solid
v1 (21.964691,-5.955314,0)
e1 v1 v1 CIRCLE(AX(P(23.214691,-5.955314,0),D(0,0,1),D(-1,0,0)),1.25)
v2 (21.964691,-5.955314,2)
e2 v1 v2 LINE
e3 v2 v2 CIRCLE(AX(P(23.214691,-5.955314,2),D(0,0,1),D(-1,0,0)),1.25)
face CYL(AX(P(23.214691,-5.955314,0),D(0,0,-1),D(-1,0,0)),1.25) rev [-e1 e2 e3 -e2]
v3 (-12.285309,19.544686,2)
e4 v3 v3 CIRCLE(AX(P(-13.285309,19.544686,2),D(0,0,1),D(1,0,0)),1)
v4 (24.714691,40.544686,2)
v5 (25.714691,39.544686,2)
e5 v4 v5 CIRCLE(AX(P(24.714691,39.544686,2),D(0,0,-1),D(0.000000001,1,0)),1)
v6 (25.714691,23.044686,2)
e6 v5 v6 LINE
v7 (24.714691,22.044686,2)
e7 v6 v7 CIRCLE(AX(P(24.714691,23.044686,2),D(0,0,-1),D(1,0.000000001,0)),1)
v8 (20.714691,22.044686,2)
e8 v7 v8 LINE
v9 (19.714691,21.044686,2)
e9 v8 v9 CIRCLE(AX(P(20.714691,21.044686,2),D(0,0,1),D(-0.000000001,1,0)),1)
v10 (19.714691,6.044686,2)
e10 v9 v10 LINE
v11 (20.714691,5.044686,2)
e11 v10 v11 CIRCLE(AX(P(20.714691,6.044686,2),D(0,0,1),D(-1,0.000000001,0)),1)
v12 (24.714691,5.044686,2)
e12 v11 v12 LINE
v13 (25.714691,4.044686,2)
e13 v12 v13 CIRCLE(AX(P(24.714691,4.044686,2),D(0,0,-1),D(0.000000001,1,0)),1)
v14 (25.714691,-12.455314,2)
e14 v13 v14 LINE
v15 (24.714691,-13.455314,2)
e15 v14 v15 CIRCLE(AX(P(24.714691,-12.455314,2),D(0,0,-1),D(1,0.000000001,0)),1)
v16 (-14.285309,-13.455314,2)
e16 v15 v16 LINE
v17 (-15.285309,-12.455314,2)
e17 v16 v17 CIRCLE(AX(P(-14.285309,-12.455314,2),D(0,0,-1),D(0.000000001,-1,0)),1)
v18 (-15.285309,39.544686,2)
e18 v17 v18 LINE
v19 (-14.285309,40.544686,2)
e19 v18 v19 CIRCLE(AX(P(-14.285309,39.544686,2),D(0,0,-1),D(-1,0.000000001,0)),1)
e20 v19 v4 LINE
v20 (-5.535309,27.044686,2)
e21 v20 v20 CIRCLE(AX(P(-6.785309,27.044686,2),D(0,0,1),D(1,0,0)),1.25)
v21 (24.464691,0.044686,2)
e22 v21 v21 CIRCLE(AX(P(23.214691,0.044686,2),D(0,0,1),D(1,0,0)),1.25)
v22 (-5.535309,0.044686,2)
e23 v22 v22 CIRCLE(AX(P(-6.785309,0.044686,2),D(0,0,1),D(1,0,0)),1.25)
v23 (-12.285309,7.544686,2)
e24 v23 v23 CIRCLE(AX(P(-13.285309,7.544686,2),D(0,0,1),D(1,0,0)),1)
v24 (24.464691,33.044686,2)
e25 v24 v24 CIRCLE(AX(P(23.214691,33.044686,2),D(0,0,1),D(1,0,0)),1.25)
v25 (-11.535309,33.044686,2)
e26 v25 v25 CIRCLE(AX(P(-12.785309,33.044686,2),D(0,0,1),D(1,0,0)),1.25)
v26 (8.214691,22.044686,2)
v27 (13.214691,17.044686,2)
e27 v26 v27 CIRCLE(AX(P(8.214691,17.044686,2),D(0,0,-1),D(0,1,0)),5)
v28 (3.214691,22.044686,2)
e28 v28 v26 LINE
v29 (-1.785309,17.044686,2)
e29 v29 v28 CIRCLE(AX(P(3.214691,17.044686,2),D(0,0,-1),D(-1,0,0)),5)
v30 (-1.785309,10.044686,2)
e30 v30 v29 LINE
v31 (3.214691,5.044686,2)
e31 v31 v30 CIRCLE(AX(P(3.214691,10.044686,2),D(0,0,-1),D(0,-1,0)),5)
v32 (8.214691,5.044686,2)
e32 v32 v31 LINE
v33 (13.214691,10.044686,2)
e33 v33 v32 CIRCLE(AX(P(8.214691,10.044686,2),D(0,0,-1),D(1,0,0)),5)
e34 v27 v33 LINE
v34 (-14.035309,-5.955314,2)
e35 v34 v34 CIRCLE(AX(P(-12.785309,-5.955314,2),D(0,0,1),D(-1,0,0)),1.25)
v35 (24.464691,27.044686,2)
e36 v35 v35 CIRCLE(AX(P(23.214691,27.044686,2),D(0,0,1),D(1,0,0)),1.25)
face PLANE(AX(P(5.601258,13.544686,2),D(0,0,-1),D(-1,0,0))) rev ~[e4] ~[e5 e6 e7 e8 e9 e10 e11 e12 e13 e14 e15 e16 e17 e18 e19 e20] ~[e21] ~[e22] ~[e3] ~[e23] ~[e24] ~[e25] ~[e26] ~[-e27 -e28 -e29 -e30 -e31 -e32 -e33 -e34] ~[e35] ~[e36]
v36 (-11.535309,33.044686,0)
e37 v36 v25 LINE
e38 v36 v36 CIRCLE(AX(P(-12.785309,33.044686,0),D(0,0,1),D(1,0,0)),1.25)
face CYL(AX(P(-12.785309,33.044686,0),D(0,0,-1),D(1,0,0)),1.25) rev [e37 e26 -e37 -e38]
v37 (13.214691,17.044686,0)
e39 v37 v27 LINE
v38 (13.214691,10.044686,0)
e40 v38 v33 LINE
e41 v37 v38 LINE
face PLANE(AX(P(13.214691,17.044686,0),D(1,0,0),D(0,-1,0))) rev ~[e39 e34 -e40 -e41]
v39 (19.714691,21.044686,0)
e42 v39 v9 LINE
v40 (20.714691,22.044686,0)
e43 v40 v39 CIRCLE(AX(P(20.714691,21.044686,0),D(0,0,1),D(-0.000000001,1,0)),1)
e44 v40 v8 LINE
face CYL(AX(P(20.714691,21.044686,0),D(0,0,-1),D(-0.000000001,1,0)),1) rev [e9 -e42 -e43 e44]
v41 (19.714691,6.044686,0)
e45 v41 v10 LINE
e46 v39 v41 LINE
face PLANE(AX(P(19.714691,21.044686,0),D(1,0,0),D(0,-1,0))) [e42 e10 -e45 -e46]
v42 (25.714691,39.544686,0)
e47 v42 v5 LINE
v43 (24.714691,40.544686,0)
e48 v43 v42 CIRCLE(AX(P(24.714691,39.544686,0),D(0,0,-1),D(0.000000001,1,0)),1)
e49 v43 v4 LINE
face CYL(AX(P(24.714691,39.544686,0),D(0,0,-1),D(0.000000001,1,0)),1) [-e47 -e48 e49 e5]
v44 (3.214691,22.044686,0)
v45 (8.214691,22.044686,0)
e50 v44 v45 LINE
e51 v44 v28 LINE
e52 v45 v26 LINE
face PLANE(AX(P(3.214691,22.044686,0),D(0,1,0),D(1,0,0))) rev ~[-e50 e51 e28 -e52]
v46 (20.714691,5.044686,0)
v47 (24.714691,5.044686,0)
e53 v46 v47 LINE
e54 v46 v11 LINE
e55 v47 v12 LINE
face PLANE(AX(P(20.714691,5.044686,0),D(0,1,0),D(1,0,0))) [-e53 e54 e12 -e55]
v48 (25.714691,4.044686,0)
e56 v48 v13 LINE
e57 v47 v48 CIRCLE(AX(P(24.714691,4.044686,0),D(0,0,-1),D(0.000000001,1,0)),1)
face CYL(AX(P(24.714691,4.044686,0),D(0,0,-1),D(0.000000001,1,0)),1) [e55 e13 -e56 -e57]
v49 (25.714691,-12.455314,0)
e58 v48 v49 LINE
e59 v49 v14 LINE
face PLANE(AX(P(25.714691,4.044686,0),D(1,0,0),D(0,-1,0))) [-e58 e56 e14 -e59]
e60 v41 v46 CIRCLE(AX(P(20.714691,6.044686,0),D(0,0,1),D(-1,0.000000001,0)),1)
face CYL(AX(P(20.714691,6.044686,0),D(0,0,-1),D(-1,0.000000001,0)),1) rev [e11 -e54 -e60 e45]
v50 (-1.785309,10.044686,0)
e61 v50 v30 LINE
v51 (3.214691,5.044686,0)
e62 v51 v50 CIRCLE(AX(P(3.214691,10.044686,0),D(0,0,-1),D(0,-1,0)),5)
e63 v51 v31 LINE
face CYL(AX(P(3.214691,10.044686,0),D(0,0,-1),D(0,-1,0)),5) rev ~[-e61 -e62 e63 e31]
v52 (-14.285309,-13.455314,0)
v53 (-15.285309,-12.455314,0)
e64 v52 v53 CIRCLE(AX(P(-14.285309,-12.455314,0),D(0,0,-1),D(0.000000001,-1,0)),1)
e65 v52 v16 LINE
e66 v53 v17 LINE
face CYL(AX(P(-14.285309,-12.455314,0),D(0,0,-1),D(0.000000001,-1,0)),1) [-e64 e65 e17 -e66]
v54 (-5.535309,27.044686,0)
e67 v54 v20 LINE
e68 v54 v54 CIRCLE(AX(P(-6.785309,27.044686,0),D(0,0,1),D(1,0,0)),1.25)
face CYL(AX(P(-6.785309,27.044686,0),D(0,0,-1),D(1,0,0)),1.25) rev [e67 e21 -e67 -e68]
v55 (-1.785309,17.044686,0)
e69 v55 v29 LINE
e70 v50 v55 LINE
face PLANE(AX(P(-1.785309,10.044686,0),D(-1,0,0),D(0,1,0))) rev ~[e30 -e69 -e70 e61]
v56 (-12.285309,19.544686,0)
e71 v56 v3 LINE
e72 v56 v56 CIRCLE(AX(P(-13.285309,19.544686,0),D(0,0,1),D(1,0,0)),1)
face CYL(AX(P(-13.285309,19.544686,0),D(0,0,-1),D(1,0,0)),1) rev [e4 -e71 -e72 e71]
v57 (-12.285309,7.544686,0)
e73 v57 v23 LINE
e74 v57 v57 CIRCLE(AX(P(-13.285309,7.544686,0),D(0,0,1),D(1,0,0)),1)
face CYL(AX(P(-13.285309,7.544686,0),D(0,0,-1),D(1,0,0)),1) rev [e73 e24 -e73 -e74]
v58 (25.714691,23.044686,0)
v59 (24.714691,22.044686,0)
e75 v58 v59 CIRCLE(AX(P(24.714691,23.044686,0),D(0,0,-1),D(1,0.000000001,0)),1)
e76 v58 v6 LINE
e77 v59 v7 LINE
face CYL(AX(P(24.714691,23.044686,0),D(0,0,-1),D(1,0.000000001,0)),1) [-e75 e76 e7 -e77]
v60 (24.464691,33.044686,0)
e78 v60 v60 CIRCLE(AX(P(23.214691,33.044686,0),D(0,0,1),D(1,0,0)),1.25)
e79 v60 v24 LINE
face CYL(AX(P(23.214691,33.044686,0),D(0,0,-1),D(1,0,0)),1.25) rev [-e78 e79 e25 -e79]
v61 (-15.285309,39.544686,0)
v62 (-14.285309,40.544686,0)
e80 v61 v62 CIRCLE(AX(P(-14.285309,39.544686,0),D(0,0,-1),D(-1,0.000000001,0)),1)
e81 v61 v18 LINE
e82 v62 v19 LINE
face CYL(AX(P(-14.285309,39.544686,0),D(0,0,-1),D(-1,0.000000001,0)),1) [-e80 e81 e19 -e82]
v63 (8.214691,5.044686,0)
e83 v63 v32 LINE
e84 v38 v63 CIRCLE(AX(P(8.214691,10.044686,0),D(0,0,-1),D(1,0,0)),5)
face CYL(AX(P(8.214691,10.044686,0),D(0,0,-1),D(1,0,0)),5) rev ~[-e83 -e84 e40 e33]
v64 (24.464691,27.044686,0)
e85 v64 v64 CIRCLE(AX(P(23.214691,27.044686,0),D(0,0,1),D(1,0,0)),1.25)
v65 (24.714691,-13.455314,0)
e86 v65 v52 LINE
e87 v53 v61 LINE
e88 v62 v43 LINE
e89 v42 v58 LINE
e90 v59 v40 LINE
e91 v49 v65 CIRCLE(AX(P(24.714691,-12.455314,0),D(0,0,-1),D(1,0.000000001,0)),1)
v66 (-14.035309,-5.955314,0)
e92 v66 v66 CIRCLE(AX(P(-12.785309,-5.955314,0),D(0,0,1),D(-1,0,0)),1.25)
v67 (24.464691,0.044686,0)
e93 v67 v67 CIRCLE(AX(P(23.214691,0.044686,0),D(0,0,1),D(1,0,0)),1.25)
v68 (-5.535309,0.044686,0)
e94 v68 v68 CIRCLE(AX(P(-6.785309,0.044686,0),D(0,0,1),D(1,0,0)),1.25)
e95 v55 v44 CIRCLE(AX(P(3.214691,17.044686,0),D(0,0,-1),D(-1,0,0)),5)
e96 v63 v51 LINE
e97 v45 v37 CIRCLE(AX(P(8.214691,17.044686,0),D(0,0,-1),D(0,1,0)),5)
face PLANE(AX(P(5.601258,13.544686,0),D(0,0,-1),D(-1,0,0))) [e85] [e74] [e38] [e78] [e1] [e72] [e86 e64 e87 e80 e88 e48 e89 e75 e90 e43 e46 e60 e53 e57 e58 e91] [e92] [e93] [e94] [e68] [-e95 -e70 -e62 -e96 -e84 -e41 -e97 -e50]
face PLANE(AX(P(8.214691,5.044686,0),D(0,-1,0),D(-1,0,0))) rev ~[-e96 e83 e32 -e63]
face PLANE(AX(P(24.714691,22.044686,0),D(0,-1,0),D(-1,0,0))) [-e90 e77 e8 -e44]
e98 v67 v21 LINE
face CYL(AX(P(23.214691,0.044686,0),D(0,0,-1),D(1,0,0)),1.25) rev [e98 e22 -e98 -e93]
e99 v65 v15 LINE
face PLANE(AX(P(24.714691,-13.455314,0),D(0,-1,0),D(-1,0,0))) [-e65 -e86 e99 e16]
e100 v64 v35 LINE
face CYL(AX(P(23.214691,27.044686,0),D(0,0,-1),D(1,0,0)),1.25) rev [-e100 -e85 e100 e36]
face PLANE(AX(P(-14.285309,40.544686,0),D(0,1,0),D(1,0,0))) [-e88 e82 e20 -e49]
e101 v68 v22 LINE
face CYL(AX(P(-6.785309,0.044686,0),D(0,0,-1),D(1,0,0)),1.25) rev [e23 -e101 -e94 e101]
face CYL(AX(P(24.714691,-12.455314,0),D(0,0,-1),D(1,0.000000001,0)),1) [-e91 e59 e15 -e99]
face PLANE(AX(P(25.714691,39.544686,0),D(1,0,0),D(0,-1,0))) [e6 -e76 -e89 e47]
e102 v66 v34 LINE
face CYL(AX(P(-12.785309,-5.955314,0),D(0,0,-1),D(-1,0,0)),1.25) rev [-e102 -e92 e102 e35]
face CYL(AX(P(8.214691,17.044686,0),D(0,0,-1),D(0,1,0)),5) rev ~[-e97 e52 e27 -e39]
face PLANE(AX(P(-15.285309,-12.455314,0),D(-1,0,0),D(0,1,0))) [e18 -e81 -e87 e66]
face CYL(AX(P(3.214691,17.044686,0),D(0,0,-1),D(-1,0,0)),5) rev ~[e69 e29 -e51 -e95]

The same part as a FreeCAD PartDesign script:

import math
import FreeCAD as App
import Part
import Sketcher
Q = App.Units.Quantity

doc = App.newDocument("Part")
body = doc.addObject("PartDesign::Body", "Body")

# Sketch on XY plane
sketch1 = body.newObject("Sketcher::SketchObject", "Sketch")
sketch1.AttachmentSupport = (doc.getObject("XY_Plane"), [""])
sketch1.MapMode = "FlatFace"
sketch1.addGeometry([
    Part.LineSegment(App.Vector(25.7, -12.5, 0), App.Vector(25.7, 4, 0)),  # 0
    Part.ArcOfCircle(Part.Circle(App.Vector(24.7, 4, 0), App.Vector(0, 0, 1), 1), math.radians(0), math.radians(90)),  # 1
    Part.LineSegment(App.Vector(24.7, 5, 0), App.Vector(20.7, 5, 0)),  # 2
    Part.ArcOfCircle(Part.Circle(App.Vector(20.7, 6, 0), App.Vector(0, 0, 1), 1), math.radians(180), math.radians(270)),  # 3
    Part.LineSegment(App.Vector(19.7, 6, 0), App.Vector(19.7, 21, 0)),  # 4
    Part.ArcOfCircle(Part.Circle(App.Vector(20.7, 21, 0), App.Vector(0, 0, 1), 1), math.radians(90), math.radians(180)),  # 5
    Part.LineSegment(App.Vector(20.7, 22, 0), App.Vector(24.7, 22, 0)),  # 6
    Part.ArcOfCircle(Part.Circle(App.Vector(24.7, 23, 0), App.Vector(0, 0, 1), 1), math.radians(-90), math.radians(0)),  # 7
    Part.LineSegment(App.Vector(25.7, 23, 0), App.Vector(25.7, 39.5, 0)),  # 8
    Part.ArcOfCircle(Part.Circle(App.Vector(24.7, 39.5, 0), App.Vector(0, 0, 1), 1), math.radians(0), math.radians(90)),  # 9
    Part.LineSegment(App.Vector(24.7, 40.5, 0), App.Vector(-14.3, 40.5, 0)),  # 10
    Part.ArcOfCircle(Part.Circle(App.Vector(-14.3, 39.5, 0), App.Vector(0, 0, 1), 1), math.radians(90), math.radians(180)),  # 11
    Part.LineSegment(App.Vector(-15.3, 39.5, 0), App.Vector(-15.3, -12.5, 0)),  # 12
    Part.ArcOfCircle(Part.Circle(App.Vector(-14.3, -12.5, 0), App.Vector(0, 0, 1), 1), math.radians(180), math.radians(270)),  # 13
    Part.LineSegment(App.Vector(-14.3, -13.5, 0), App.Vector(24.7, -13.5, 0)),  # 14
    Part.ArcOfCircle(Part.Circle(App.Vector(24.7, -12.5, 0), App.Vector(0, 0, 1), 1), math.radians(-90), math.radians(0)),  # 15
    Part.Circle(App.Vector(23.2, -6, 0), App.Vector(0, 0, 1), 1.2),  # 16
    Part.Circle(App.Vector(23.2, 0, 0), App.Vector(0, 0, 1), 1.2),  # 17
    Part.Circle(App.Vector(-12.8, -6, 0), App.Vector(0, 0, 1), 1.2),  # 18
    Part.Circle(App.Vector(-6.8, 0, 0), App.Vector(0, 0, 1), 1.2),  # 19
    Part.Circle(App.Vector(-13.3, 7.5, 0), App.Vector(0, 0, 1), 1),  # 20
    Part.LineSegment(App.Vector(3.2, 22, 0), App.Vector(8.2, 22, 0)),  # 21
    Part.ArcOfCircle(Part.Circle(App.Vector(8.2, 17, 0), App.Vector(0, 0, 1), 5), math.radians(0), math.radians(90)),  # 22
    Part.LineSegment(App.Vector(13.2, 17, 0), App.Vector(13.2, 10, 0)),  # 23
    Part.ArcOfCircle(Part.Circle(App.Vector(8.2, 10, 0), App.Vector(0, 0, 1), 5), math.radians(-90), math.radians(0)),  # 24
    Part.LineSegment(App.Vector(8.2, 5, 0), App.Vector(3.2, 5, 0)),  # 25
    Part.ArcOfCircle(Part.Circle(App.Vector(3.2, 10, 0), App.Vector(0, 0, 1), 5), math.radians(180), math.radians(270)),  # 26
    Part.LineSegment(App.Vector(-1.8, 10, 0), App.Vector(-1.8, 17, 0)),  # 27
    Part.ArcOfCircle(Part.Circle(App.Vector(3.2, 17, 0), App.Vector(0, 0, 1), 5), math.radians(90), math.radians(180)),  # 28
    Part.Circle(App.Vector(23.2, 27, 0), App.Vector(0, 0, 1), 1.2),  # 29
    Part.Circle(App.Vector(23.2, 33, 0), App.Vector(0, 0, 1), 1.2),  # 30
    Part.Circle(App.Vector(-13.3, 19.5, 0), App.Vector(0, 0, 1), 1),  # 31
    Part.Circle(App.Vector(-6.8, 27, 0), App.Vector(0, 0, 1), 1.2),  # 32
    Part.Circle(App.Vector(-12.8, 33, 0), App.Vector(0, 0, 1), 1.2),  # 33
], False)
sketch1.addConstraint([
    Sketcher.Constraint("Tangent", 0, 2, 1, 1),
    Sketcher.Constraint("Tangent", 1, 2, 2, 1),
    Sketcher.Constraint("Tangent", 2, 2, 3, 2),
    Sketcher.Constraint("Tangent", 3, 1, 4, 1),
    Sketcher.Constraint("Tangent", 4, 2, 5, 2),
    Sketcher.Constraint("Tangent", 5, 1, 6, 1),
    Sketcher.Constraint("Tangent", 6, 2, 7, 1),
    Sketcher.Constraint("Tangent", 7, 2, 8, 1),
    Sketcher.Constraint("Tangent", 8, 2, 9, 1),
    Sketcher.Constraint("Tangent", 9, 2, 10, 1),
    Sketcher.Constraint("Tangent", 10, 2, 11, 1),
    Sketcher.Constraint("Tangent", 11, 2, 12, 1),
    Sketcher.Constraint("Tangent", 12, 2, 13, 1),
    Sketcher.Constraint("Tangent", 13, 2, 14, 1),
    Sketcher.Constraint("Tangent", 14, 2, 15, 1),
    Sketcher.Constraint("Tangent", 15, 2, 0, 1),
    Sketcher.Constraint("Tangent", 21, 2, 22, 2),
    Sketcher.Constraint("Tangent", 22, 1, 23, 1),
    Sketcher.Constraint("Tangent", 23, 2, 24, 2),
    Sketcher.Constraint("Tangent", 24, 1, 25, 1),
    Sketcher.Constraint("Tangent", 25, 2, 26, 2),
    Sketcher.Constraint("Tangent", 26, 1, 27, 1),
    Sketcher.Constraint("Tangent", 27, 2, 28, 2),
    Sketcher.Constraint("Tangent", 28, 1, 21, 1),
    Sketcher.Constraint("Vertical", 0),
    Sketcher.Constraint("Horizontal", 2),
    Sketcher.Constraint("Vertical", 4),
    Sketcher.Constraint("Horizontal", 6),
    Sketcher.Constraint("Vertical", 8),
    Sketcher.Constraint("Horizontal", 10),
    Sketcher.Constraint("Vertical", 12),
    Sketcher.Constraint("Horizontal", 14),
    Sketcher.Constraint("Horizontal", 21),
    Sketcher.Constraint("Vertical", 23),
    Sketcher.Constraint("Horizontal", 25),
    Sketcher.Constraint("Vertical", 27),
    Sketcher.Constraint("Equal", 1, 3),
    Sketcher.Constraint("Equal", 3, 5),
    Sketcher.Constraint("Equal", 5, 7),
    Sketcher.Constraint("Equal", 7, 9),
    Sketcher.Constraint("Equal", 9, 11),
    Sketcher.Constraint("Equal", 11, 13),
    Sketcher.Constraint("Equal", 13, 15),
    Sketcher.Constraint("Equal", 16, 17),
    Sketcher.Constraint("Equal", 17, 18),
    Sketcher.Constraint("Equal", 18, 19),
    Sketcher.Constraint("Equal", 15, 20),
    Sketcher.Constraint("Equal", 22, 24),
    Sketcher.Constraint("Equal", 24, 26),
    Sketcher.Constraint("Equal", 26, 28),
    Sketcher.Constraint("Equal", 19, 29),
    Sketcher.Constraint("Equal", 29, 30),
    Sketcher.Constraint("Equal", 20, 31),
    Sketcher.Constraint("Equal", 30, 32),
    Sketcher.Constraint("Equal", 32, 33),
    Sketcher.Constraint("Horizontal", 16, 3, 18, 3),
    Sketcher.Constraint("Horizontal", 17, 3, 19, 3),
    Sketcher.Constraint("Horizontal", 29, 3, 32, 3),
    Sketcher.Constraint("Horizontal", 30, 3, 33, 3),
    Sketcher.Constraint("Horizontal", 6, 2, 21, 2),
    Sketcher.Constraint("Horizontal", 2, 2, 24, 1),
    Sketcher.Constraint("Vertical", 1, 3, 7, 3),
    Sketcher.Constraint("Vertical", 16, 3, 17, 3),
    Sketcher.Constraint("Vertical", 17, 3, 29, 3),
    Sketcher.Constraint("Vertical", 29, 3, 30, 3),
    Sketcher.Constraint("Vertical", 20, 3, 31, 3),
    Sketcher.Constraint("Vertical", 19, 3, 32, 3),
    Sketcher.Constraint("Vertical", 18, 3, 33, 3),
    Sketcher.Constraint("Equal", 0, 8),
    Sketcher.Constraint("Diameter", 20, Q("2 mm")),
    Sketcher.Constraint("Radius", 22, Q("5 mm")),
    Sketcher.Constraint("Diameter", 16, Q("2.5 mm")),
    Sketcher.Constraint("DistanceX", 2, 2, 2, 1, Q("4 mm")),
    Sketcher.Constraint("DistanceX", 10, 2, 10, 1, Q("39 mm")),
    Sketcher.Constraint("DistanceX", 21, 1, 21, 2, Q("5 mm")),
    Sketcher.Constraint("DistanceY", 4, 1, 4, 2, Q("15 mm")),
    Sketcher.Constraint("DistanceY", 12, 2, 12, 1, Q("52 mm")),
    Sketcher.Constraint("DistanceY", 16, 3, 1, 3, Q("10 mm")),
    Sketcher.Constraint("DistanceY", 17, 3, 1, 3, Q("4 mm")),
    Sketcher.Constraint("DistanceX", 18, 3, 16, 3, Q("36 mm")),
    Sketcher.Constraint("DistanceX", 18, 3, 19, 3, Q("6 mm")),
    Sketcher.Constraint("DistanceX", 13, 3, 20, 3, Q("1 mm")),
    Sketcher.Constraint("DistanceY", 13, 3, 20, 3, Q("20 mm")),
    Sketcher.Constraint("DistanceX", 22, 3, 17, 3, Q("15 mm")),
    Sketcher.Constraint("DistanceY", 7, 3, 29, 3, Q("4 mm")),
    Sketcher.Constraint("DistanceY", 29, 3, 30, 3, Q("6 mm")),
    Sketcher.Constraint("DistanceY", 20, 3, 31, 3, Q("12 mm")),
    Sketcher.Constraint("DistanceX", 16, 3, 15, 3, Q("1.5 mm")),
    Sketcher.Constraint("DistanceX", -1, 1, 1, 3, Q("24.714691 mm")),
    Sketcher.Constraint("DistanceY", -1, 1, 1, 3, Q("4.044686 mm")),
])
pad1 = body.newObject("PartDesign::Pad", "Pad")
pad1.Profile = sketch1
pad1.Length = 2

doc.recompute()
